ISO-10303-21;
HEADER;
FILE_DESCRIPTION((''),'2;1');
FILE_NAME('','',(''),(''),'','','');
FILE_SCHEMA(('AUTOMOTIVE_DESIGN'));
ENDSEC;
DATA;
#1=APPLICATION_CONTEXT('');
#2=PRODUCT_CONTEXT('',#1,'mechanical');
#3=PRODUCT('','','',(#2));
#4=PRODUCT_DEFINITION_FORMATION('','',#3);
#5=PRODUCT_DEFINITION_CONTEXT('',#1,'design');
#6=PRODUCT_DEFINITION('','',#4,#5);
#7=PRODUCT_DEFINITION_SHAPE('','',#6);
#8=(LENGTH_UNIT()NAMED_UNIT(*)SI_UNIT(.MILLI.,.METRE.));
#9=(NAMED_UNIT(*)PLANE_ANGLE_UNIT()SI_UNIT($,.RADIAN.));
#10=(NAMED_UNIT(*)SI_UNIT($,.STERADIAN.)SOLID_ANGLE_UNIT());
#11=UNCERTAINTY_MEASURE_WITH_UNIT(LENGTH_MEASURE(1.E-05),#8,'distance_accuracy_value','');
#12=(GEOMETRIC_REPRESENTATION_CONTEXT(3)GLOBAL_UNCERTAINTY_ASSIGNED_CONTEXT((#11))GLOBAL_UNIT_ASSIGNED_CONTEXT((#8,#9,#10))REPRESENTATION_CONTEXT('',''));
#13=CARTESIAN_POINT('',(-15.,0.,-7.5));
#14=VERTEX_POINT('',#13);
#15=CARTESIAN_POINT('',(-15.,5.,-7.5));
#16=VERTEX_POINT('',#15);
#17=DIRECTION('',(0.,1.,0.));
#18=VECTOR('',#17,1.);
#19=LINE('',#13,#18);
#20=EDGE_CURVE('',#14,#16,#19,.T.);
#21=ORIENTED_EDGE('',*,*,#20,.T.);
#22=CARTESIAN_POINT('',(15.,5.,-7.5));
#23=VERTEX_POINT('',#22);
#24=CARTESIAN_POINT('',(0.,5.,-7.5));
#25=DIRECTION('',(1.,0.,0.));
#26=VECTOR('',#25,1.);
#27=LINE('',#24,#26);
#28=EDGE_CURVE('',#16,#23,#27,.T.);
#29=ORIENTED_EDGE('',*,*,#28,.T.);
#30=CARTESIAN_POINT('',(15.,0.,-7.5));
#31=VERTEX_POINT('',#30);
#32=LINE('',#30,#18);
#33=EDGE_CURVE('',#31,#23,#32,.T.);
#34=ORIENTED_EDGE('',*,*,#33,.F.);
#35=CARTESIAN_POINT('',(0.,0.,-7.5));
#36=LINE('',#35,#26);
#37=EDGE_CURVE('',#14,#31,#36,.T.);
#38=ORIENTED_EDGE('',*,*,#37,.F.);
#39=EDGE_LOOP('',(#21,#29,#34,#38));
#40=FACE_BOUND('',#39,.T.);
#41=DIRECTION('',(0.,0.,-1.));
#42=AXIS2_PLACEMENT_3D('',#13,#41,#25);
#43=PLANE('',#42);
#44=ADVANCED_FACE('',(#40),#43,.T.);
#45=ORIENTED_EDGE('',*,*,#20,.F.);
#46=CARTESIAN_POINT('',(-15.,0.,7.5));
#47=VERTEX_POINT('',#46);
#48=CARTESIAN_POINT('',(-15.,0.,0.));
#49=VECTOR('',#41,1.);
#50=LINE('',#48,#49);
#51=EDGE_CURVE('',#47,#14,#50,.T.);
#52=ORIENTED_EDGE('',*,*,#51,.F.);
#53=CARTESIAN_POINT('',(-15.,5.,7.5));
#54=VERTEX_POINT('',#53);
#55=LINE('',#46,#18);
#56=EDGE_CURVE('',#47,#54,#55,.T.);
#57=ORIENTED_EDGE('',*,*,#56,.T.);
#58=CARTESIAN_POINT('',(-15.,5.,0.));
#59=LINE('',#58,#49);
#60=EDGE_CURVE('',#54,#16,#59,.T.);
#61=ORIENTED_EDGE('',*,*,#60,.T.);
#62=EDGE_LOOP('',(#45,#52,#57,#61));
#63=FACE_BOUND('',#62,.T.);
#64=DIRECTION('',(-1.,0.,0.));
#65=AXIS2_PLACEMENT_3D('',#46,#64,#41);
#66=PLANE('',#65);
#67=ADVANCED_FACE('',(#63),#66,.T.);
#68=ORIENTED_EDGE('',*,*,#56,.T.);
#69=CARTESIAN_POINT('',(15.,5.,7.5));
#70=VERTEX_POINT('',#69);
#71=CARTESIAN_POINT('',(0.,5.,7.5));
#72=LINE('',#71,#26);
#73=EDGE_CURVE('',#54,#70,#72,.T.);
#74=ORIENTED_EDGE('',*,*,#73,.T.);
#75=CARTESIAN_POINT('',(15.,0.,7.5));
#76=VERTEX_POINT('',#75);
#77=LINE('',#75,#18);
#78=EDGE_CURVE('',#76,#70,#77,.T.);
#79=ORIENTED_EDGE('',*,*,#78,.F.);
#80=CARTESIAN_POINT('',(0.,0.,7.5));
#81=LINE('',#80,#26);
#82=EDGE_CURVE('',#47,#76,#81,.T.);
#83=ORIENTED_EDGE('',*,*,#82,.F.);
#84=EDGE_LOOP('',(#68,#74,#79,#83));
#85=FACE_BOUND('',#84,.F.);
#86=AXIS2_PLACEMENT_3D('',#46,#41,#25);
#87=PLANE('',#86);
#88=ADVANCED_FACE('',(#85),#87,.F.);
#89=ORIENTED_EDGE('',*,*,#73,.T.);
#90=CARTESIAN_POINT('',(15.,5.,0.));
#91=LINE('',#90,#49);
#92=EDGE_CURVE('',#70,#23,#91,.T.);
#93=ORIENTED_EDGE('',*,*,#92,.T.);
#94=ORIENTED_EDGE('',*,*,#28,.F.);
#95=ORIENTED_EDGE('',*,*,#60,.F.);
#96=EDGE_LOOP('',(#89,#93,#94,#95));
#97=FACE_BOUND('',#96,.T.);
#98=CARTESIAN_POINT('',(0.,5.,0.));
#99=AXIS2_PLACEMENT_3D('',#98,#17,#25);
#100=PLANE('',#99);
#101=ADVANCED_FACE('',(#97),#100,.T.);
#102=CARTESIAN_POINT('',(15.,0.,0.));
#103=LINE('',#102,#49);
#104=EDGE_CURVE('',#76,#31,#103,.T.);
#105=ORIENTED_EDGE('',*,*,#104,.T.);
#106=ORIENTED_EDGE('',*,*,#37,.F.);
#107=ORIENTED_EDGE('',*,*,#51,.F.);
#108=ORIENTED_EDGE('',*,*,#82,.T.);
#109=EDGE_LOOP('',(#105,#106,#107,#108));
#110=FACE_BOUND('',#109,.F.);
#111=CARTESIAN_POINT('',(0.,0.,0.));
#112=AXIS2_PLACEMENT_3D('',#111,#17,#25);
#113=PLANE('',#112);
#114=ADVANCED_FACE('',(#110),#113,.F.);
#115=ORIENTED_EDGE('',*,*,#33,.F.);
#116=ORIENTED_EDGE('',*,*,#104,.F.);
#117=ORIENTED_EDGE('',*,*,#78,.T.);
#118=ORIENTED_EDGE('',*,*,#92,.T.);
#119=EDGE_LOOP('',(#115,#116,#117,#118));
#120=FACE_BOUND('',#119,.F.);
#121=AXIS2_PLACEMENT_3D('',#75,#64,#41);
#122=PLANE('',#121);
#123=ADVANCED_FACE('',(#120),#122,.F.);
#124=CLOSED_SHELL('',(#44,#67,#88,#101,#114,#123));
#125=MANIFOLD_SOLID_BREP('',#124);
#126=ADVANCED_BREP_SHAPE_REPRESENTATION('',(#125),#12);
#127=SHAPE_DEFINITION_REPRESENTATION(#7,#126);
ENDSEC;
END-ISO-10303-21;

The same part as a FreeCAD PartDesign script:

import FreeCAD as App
import Part
import Sketcher

V = App.Vector


def add_polygon(sketch, points):
    """Adds a closed chain of lines whose ends are joined by coincident constraints."""
    first, n = sketch.GeometryCount, len(points)
    for a, b in zip(points, points[1:] + points[:1]):
        sketch.addGeometry(Part.LineSegment(App.Vector(*a, 0), App.Vector(*b, 0)), False)
    for i in range(n):
        sketch.addConstraint(Sketcher.Constraint("Coincident", first + i, 2, first + (i + 1) % n, 1))

doc = App.newDocument("Part")
body = doc.addObject("PartDesign::Body", "Body")

# Sketch on XZ plane
sketch1 = body.newObject("Sketcher::SketchObject", "Sketch")
sketch1.AttachmentSupport = (doc.getObject("XZ_Plane"), [""])
sketch1.MapMode = "FlatFace"
add_polygon(sketch1, [(-15, -8), (-15, 8), (15, 8), (15, -8)])  # lines 0-3
sketch1.addConstraint(Sketcher.Constraint("Vertical", 0))
sketch1.addConstraint(Sketcher.Constraint("Horizontal", 1))
sketch1.addConstraint(Sketcher.Constraint("Vertical", 2))
sketch1.addConstraint(Sketcher.Constraint("Horizontal", 3))
sketch1.addConstraint(Sketcher.Constraint("Symmetric", 0, 2, 2, 2, -1, 1))
sketch1.addConstraint(Sketcher.Constraint("DistanceX", 1, 1, 1, 2, 30.0))
sketch1.addConstraint(Sketcher.Constraint("DistanceY", 0, 1, 0, 2, 15.0))
pad1 = body.newObject("PartDesign::Pad", "Pad")
pad1.Profile = sketch1
pad1.Length = 5
pad1.Reversed = True

doc.recompute()
